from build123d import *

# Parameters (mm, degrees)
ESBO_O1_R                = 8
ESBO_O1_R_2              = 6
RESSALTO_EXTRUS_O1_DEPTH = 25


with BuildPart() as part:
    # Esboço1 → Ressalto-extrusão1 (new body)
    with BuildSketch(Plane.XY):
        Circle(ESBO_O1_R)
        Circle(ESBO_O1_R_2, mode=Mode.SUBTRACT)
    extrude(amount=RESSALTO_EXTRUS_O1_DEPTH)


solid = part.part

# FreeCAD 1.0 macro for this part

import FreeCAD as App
import Part
import Sketcher
Q = App.Units.Quantity

doc = App.newDocument("Part")
params = doc.addObject("Spreadsheet::Sheet", "Params")
for row, (alias, value) in enumerate([
    ("sketch1_diameter", "16 mm"),
    ("sketch1_diameter2", "12 mm"),
    ("pad1_length", "25 mm"),
], start=1):
    params.set(f"A{row}", alias)
    params.set(f"B{row}", "=" + value)
    params.setAlias(f"B{row}", alias)

body = doc.addObject("PartDesign::Body", "Body")

# Sketch on XY plane
sketch1 = doc.addObject("Sketcher::SketchObject", "Sketch")
body.addObject(sketch1)
sketch1.AttachmentSupport = (doc.XY_Plane, [""])
sketch1.MapMode = "FlatFace"
sketch1.addGeometry(Part.Circle(App.Vector(0, 0, 0), App.Vector(0, 0, 1), 8), False)
sketch1.addGeometry(Part.Circle(App.Vector(0, 0, 0), App.Vector(0, 0, 1), 6), False)
sketch1.addConstraint(Sketcher.Constraint("Coincident", 0, 3, -1, 1))
sketch1.addConstraint(Sketcher.Constraint("Coincident", 1, 3, -1, 1))
sketch1.addConstraint(Sketcher.Constraint("Diameter", 0, Q("16 mm")))
sketch1.addConstraint(Sketcher.Constraint("Diameter", 1, Q("12 mm")))
sketch1.setExpression("Constraints[2]", "Params.sketch1_diameter")
sketch1.setExpression("Constraints[3]", "Params.sketch1_diameter2")
pad1 = doc.addObject("PartDesign::Pad", "Pad")
body.addObject(pad1)
pad1.Profile = sketch1
pad1.setExpression("Length", "Params.pad1_length")

doc.recompute()
